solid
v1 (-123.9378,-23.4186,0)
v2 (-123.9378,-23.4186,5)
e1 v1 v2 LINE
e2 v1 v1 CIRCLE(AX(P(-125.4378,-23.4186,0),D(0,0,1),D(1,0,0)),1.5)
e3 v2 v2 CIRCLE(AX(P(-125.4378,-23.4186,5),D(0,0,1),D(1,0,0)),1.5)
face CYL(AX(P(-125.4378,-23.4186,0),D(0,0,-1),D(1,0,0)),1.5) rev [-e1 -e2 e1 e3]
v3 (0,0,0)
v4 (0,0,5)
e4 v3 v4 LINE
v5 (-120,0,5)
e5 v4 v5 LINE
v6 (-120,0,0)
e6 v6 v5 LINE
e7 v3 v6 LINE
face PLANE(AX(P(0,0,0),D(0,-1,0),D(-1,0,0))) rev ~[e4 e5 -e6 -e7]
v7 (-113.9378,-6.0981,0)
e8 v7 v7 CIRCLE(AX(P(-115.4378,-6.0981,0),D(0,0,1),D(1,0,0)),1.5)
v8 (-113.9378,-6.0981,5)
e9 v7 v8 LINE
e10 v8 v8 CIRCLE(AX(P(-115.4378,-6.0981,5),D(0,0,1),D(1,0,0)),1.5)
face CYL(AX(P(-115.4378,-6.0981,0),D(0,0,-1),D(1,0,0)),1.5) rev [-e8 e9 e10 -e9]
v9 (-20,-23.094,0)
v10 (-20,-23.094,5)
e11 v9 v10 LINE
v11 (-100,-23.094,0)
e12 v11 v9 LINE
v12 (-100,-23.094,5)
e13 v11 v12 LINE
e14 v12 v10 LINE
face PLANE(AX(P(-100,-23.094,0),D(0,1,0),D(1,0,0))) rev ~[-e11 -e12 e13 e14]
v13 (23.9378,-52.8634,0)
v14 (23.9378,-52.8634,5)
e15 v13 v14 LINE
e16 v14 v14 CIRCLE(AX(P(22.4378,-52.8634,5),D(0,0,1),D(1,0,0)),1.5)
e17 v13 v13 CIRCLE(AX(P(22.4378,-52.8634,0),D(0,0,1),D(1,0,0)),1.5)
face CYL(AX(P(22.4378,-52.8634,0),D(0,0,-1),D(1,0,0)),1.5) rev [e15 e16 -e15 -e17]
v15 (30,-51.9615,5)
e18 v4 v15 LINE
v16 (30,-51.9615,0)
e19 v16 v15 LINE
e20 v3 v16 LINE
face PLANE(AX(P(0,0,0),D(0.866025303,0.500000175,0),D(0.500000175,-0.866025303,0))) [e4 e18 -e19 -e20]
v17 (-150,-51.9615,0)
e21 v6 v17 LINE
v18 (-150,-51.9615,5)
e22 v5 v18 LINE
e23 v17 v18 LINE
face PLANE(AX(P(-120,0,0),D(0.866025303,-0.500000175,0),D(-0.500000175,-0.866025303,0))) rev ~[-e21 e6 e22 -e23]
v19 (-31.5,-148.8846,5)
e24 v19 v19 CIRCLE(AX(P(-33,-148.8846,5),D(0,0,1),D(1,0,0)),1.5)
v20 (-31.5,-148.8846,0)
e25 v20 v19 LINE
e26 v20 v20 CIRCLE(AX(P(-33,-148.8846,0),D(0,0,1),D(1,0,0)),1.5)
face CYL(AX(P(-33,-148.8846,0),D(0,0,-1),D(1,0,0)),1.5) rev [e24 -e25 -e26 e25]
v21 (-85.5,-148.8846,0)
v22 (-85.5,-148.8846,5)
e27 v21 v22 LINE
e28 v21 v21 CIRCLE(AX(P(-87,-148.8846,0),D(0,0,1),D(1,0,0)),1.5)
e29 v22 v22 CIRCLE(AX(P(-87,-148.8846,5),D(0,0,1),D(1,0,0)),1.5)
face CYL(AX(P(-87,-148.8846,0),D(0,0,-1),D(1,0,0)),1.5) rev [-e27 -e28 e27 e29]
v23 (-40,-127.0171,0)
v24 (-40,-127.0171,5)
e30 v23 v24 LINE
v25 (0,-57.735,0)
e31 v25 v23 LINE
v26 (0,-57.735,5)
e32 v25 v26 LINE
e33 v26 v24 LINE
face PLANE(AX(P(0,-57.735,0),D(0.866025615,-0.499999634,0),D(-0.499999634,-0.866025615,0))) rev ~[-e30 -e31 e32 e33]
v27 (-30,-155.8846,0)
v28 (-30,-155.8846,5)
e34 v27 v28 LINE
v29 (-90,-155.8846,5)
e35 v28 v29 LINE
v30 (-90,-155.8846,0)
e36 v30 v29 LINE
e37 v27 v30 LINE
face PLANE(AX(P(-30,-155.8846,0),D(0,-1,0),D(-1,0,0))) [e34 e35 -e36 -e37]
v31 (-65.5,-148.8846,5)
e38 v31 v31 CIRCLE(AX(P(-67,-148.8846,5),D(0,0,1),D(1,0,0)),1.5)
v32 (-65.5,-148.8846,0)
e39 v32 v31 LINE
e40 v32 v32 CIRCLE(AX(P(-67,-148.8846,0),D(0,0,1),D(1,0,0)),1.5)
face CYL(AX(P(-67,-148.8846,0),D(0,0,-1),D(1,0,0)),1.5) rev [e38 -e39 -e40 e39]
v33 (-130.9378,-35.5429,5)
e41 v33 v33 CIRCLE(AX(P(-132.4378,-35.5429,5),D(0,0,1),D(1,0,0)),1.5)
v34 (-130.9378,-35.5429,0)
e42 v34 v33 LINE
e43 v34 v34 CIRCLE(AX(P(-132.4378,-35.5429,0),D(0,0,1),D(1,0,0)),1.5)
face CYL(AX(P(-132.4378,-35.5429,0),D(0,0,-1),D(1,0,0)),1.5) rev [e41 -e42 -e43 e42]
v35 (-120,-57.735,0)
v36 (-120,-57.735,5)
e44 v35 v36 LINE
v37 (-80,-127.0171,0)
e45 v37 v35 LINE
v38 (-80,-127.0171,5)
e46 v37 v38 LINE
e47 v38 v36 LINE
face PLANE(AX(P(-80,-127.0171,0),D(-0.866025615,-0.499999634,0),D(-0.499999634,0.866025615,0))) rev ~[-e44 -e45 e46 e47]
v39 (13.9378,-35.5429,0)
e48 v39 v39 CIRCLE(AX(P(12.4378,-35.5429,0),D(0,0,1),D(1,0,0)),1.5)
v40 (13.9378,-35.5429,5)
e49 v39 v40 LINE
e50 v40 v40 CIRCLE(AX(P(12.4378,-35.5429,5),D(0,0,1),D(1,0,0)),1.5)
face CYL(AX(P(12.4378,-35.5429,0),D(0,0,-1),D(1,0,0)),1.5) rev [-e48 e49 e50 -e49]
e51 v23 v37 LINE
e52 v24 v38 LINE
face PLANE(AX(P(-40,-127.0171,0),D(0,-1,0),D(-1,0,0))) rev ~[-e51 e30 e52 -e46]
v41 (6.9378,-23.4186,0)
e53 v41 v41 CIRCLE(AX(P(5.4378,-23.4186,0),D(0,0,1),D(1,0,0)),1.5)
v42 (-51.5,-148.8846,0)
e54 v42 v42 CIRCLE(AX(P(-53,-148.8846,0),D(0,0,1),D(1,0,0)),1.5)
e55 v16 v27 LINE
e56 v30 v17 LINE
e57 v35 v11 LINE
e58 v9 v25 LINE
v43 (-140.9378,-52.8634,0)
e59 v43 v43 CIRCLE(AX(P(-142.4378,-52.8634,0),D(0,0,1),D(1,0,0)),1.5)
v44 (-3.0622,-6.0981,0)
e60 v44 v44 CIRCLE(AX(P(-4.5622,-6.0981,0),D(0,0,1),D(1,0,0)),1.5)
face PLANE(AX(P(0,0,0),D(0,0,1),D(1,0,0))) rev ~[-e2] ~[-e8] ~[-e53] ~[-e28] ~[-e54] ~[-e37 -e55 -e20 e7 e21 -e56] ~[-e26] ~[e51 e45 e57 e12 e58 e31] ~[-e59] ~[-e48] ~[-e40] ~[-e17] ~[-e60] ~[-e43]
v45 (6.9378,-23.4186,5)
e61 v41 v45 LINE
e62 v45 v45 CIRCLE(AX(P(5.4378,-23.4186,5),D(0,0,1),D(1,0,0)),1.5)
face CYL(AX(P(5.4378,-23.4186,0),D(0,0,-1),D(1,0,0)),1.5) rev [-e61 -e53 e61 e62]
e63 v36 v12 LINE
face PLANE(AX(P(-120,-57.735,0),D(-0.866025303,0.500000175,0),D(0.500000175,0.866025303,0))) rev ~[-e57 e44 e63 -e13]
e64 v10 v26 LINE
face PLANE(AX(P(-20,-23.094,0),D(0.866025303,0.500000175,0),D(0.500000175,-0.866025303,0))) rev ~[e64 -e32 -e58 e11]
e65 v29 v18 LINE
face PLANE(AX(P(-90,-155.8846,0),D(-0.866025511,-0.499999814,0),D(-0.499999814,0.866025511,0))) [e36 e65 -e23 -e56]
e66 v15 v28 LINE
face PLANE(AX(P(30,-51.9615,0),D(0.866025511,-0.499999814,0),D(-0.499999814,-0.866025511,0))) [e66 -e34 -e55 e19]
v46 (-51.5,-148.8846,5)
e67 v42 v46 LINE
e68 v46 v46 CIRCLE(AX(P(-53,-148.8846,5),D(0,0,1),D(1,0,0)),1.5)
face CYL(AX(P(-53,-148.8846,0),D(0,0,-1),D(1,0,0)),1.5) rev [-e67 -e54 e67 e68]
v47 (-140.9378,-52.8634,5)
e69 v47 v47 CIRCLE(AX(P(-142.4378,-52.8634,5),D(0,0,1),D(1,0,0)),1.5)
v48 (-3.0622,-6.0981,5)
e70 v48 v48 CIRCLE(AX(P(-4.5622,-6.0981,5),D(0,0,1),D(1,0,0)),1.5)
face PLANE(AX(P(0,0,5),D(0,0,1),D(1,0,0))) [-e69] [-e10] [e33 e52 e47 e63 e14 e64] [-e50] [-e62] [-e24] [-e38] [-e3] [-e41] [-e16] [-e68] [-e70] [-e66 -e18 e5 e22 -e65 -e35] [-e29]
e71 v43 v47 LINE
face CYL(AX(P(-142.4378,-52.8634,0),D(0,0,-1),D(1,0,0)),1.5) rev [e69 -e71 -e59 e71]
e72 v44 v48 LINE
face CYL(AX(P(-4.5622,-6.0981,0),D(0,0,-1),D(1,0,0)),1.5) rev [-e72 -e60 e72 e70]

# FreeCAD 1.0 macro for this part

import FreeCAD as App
import Part
import Sketcher

V = App.Vector
Q = App.Units.Quantity


def add_polygon(sketch, points):
    """Adds a closed chain of lines whose ends are joined by coincident constraints."""
    first, n = sketch.GeometryCount, len(points)
    for a, b in zip(points, points[1:] + points[:1]):
        sketch.addGeometry(Part.LineSegment(App.Vector(*a, 0), App.Vector(*b, 0)), False)
    for i in range(n):
        sketch.addConstraint(Sketcher.Constraint("Coincident", first + i, 2, first + (i + 1) % n, 1))

doc = App.newDocument("Part")
body = doc.addObject("PartDesign::Body", "Body")

# Sketch on XY plane
sketch1 = body.newObject("Sketcher::SketchObject", "Sketch")
sketch1.AttachmentSupport = (doc.getObject("XY_Plane"), [""])
sketch1.MapMode = "FlatFace"
add_polygon(sketch1, [(30, -52), (0, 0), (-120, 0), (-150, -52), (-90, -155.9), (-30, -155.9)])  # lines 0-5
sketch1.addGeometry(Part.Circle(V(-87, -148.9, 0), V(0, 0, 1), 1.5), False)  # 6
sketch1.addGeometry(Part.Circle(V(-67, -148.9, 0), V(0, 0, 1), 1.5), False)  # 7
sketch1.addGeometry(Part.Circle(V(-53, -148.9, 0), V(0, 0, 1), 1.5), False)  # 8
sketch1.addGeometry(Part.Circle(V(-33, -148.9, 0), V(0, 0, 1), 1.5), False)  # 9
sketch1.addGeometry(Part.Circle(V(-142.4, -52.9, 0), V(0, 0, 1), 1.5), False)  # 10
sketch1.addGeometry(Part.Circle(V(-132.4, -35.5, 0), V(0, 0, 1), 1.5), False)  # 11
sketch1.addGeometry(Part.Circle(V(-125.4, -23.4, 0), V(0, 0, 1), 1.5), False)  # 12
sketch1.addGeometry(Part.Circle(V(-115.4, -6.1, 0), V(0, 0, 1), 1.5), False)  # 13
add_polygon(sketch1, [(-120, -57.7), (-100, -23.1), (-20, -23.1), (0, -57.7), (-40, -127), (-80, -127)])  # lines 14-19
sketch1.addGeometry(Part.Circle(V(22.4, -52.9, 0), V(0, 0, 1), 1.5), False)  # 20
sketch1.addGeometry(Part.Circle(V(5.4, -23.4, 0), V(0, 0, 1), 1.5), False)  # 21
sketch1.addGeometry(Part.Circle(V(12.4, -35.5, 0), V(0, 0, 1), 1.5), False)  # 22
sketch1.addGeometry(Part.Circle(V(-4.6, -6.1, 0), V(0, 0, 1), 1.5), False)  # 23
sketch1.addConstraint([
    Sketcher.Constraint("Horizontal", 1),
    Sketcher.Constraint("Horizontal", 4),
    Sketcher.Constraint("Horizontal", 15),
    Sketcher.Constraint("Horizontal", 18),
    Sketcher.Constraint("Coincident", 0, 2, -1, 1),
    Sketcher.Constraint("Equal", 6, 7),
    Sketcher.Constraint("Equal", 7, 8),
    Sketcher.Constraint("Equal", 8, 9),
    Sketcher.Constraint("Equal", 9, 10),
    Sketcher.Constraint("Equal", 10, 11),
    Sketcher.Constraint("Equal", 11, 12),
    Sketcher.Constraint("Equal", 12, 13),
    Sketcher.Constraint("Equal", 13, 20),
    Sketcher.Constraint("Equal", 20, 21),
    Sketcher.Constraint("Equal", 21, 22),
    Sketcher.Constraint("Equal", 22, 23),
    Sketcher.Constraint("PointOnObject", 16, 2, -2),
    Sketcher.Constraint("Parallel", 0, 3),
    Sketcher.Constraint("Parallel", 2, 5),
    Sketcher.Constraint("Parallel", 5, 14),
    Sketcher.Constraint("Parallel", 3, 16),
    Sketcher.Constraint("Parallel", 14, 17),
    Sketcher.Constraint("Parallel", 16, 19),
    Sketcher.Constraint("Horizontal", 6, 3, 7, 3),
    Sketcher.Constraint("Horizontal", 7, 3, 8, 3),
    Sketcher.Constraint("Horizontal", 8, 3, 9, 3),
    Sketcher.Constraint("Horizontal", 10, 3, 20, 3),
    Sketcher.Constraint("Horizontal", 12, 3, 21, 3),
    Sketcher.Constraint("Horizontal", 11, 3, 22, 3),
    Sketcher.Constraint("Horizontal", 13, 3, 23, 3),
    Sketcher.Constraint("Horizontal", 2, 2, 5, 2),
    Sketcher.Constraint("Horizontal", 16, 2, 19, 2),
    Sketcher.Constraint("Vertical", 1, 2, 19, 2),
    Sketcher.Constraint("Equal", 0, 2),
    Sketcher.Constraint("Diameter", 6, 3.0),
    Sketcher.Constraint("DistanceX", 1, 2, 1, 1, 120.0),
    Sketcher.Constraint("DistanceX", 4, 1, 4, 2, 60.0),
    Sketcher.Constraint("DistanceX", 15, 1, 15, 2, 80.0),
    Sketcher.Constraint("DistanceX", 18, 2, 18, 1, 40.0),
    Sketcher.Constraint("Angle", 0, Q("120 deg")),
    Sketcher.Constraint("Distance", 0, 60.0),
    Sketcher.Constraint("DistanceX", 6, 3, 7, 3, 20.0),
    Sketcher.Constraint("DistanceX", 8, 3, 9, 3, 20.0),
    Sketcher.Constraint("DistanceX", 11, 3, 12, 3, 7.0),
    Sketcher.Constraint("DistanceX", 21, 3, 22, 3, 7.0),
    Sketcher.Constraint("DistanceX", 3, 2, 6, 3, 3.0),
    Sketcher.Constraint("DistanceY", 3, 2, 6, 3, 7.0),
    Sketcher.Constraint("DistanceX", 9, 3, 4, 2, 3.0),
    Sketcher.Constraint("DistanceX", 10, 3, 11, 3, 10.0),
    Sketcher.Constraint("DistanceX", 12, 3, 13, 3, 10.0),
    Sketcher.Constraint("DistanceX", 21, 3, 20, 3, 17.0),
    Sketcher.Constraint("DistanceX", 23, 3, 21, 3, 10.0),
    Sketcher.Constraint("DistanceY", 11, 3, -1, 1, 35.543),
    Sketcher.Constraint("DistanceY", 13, 3, -1, 1, 6.098),
    Sketcher.Constraint("DistanceY", 14, 2, -1, 1, 23.094),
    Sketcher.Constraint("DistanceY", 6, 3, 12, 3, 125.466),
    Sketcher.Constraint("DistanceY", 10, 3, 2, 2, 0.902),
    Sketcher.Constraint("DistanceX", 10, 3, -1, 1, 142.4378),
    Sketcher.Constraint("DistanceX", -1, 1, 20, 3, 22.4378),
])
pad1 = body.newObject("PartDesign::Pad", "Pad")
pad1.Profile = sketch1
pad1.Length = 5

doc.recompute()
